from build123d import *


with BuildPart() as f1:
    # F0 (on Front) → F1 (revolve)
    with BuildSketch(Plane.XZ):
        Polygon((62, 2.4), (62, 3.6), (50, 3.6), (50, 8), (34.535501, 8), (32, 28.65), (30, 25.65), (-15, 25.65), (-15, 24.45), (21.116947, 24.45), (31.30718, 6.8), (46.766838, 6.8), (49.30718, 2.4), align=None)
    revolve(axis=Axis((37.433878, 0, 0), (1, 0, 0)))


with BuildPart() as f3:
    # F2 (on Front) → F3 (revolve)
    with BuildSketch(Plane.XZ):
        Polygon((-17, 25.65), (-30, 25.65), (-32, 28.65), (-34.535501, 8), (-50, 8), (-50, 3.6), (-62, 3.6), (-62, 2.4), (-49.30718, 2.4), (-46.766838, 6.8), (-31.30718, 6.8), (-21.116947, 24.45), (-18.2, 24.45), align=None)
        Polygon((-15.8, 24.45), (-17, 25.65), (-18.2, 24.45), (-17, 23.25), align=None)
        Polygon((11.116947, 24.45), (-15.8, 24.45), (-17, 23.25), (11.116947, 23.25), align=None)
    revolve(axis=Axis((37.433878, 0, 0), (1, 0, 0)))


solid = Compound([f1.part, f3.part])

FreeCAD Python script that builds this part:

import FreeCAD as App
import Part
import Sketcher
from FreeCAD import Vector
Q = App.Units.Quantity


def add_polygon(sketch, points):
    """Adds a closed chain of lines whose ends are joined by coincident constraints."""
    first, n = sketch.GeometryCount, len(points)
    for a, b in zip(points, points[1:] + points[:1]):
        sketch.addGeometry(Part.LineSegment(App.Vector(*a, 0), App.Vector(*b, 0)), False)
    for i in range(n):
        sketch.addConstraint(Sketcher.Constraint("Coincident", first + i, 2, first + (i + 1) % n, 1))

doc = App.newDocument("Part")
params = doc.addObject("Spreadsheet::Sheet", "Params")
for row, (alias, value) in enumerate([
    ("sketch1_width", "12 mm"),
    ("sketch1_width2", "45 mm"),
    ("sketch1_height", "1.2 mm"),
    ("sketch1_height2", "4.4 mm"),
    ("revolution_angle", "360 deg"),
    ("sketch2_width", "13 mm"),
    ("sketch2_width2", "12 mm"),
    ("sketch2_height", "4.4 mm"),
    ("sketch2_height2", "1.2 mm"),
    ("revolution2_angle", "360 deg"),
], start=1):
    params.set(f"A{row}", alias)
    params.set(f"B{row}", "=" + value)
    params.setAlias(f"B{row}", alias)

body = doc.addObject("PartDesign::Body", "Body")

sketch1 = doc.addObject("Sketcher::SketchObject", "Sketch")
body.addObject(sketch1)
sketch1.AttachmentSupport = (doc.XZ_Plane, [""])
sketch1.MapMode = "FlatFace"
add_polygon(sketch1, [(62, 2.4), (62, 3.6), (50, 3.6), (50, 8), (34.5, 8), (32, 28.6), (30, 25.6), (-15, 25.6), (-15, 24.4), (21.1, 24.4), (31.3, 6.8), (46.8, 6.8), (49.3, 2.4)])
sketch1.addConstraint([
    Sketcher.Constraint("Vertical", 0),
    Sketcher.Constraint("Horizontal", 1),
    Sketcher.Constraint("Vertical", 2),
    Sketcher.Constraint("Horizontal", 3),
    Sketcher.Constraint("Horizontal", 6),
    Sketcher.Constraint("Vertical", 7),
    Sketcher.Constraint("Horizontal", 8),
    Sketcher.Constraint("Horizontal", 10),
    Sketcher.Constraint("Horizontal", 12),
    Sketcher.Constraint("Parallel", 9, 11),
    Sketcher.Constraint("Equal", 0, 7),
    Sketcher.Constraint("DistanceX", 1, 2, 1, 1, 12.0),
    Sketcher.Constraint("DistanceX", 6, 2, 6, 1, 45.0),
    Sketcher.Constraint("Angle", 4, Q("97 deg")),
    Sketcher.Constraint("Angle", 9, Q("-59.999998 deg")),
    Sketcher.Constraint("DistanceY", 0, 1, 0, 2, 1.2),
    Sketcher.Constraint("DistanceY", 2, 1, 2, 2, 4.4),
    Sketcher.Constraint("DistanceX", -1, 1, 0, 2, 62.0),
    Sketcher.Constraint("DistanceY", -1, 1, 2, 2, 8.0),
    Sketcher.Constraint("DistanceX", -1, 1, 4, 2, 32.0),
    Sketcher.Constraint("DistanceX", -1, 1, 5, 2, 30.0),
    Sketcher.Constraint("DistanceY", 5, 2, 4, 2, 3.0),
    Sketcher.Constraint("DistanceY", -1, 1, 9, 2, 6.8),
    Sketcher.Constraint("DistanceY", -1, 1, 4, 2, 28.65),
    Sketcher.Constraint("DistanceX", 10, 1, 10, 2, 15.459658),
    Sketcher.Constraint("DistanceX", 12, 1, 12, 2, 12.69282),
])
sketch1.setExpression("Constraints[24]", "Params.sketch1_width")
sketch1.setExpression("Constraints[25]", "Params.sketch1_width2")
sketch1.setExpression("Constraints[28]", "Params.sketch1_height")
sketch1.setExpression("Constraints[29]", "Params.sketch1_height2")
revolution = doc.addObject("PartDesign::Revolution", "Revolution")
body.addObject(revolution)
revolution.Profile = sketch1
revolution.ReferenceAxis = (sketch1, ["H_Axis"])
revolution.setExpression("Angle", "Params.revolution_angle")
body2 = doc.addObject("PartDesign::Body", "Body001")

sketch2 = doc.addObject("Sketcher::SketchObject", "Sketch001")
body2.addObject(sketch2)
sketch2.AttachmentSupport = (doc.getObject("XZ_Plane001"), [""])
sketch2.MapMode = "FlatFace"
add_polygon(sketch2, [(-17, 25.6), (-30, 25.6), (-32, 28.6), (-34.5, 8), (-50, 8), (-50, 3.6), (-62, 3.6), (-62, 2.4), (-49.3, 2.4), (-46.8, 6.8), (-31.3, 6.8), (-21.1, 24.4), (-18.2, 24.4), (-17, 23.2), (11.1, 23.2), (11.1, 24.4), (-15.8, 24.4)])
sketch2.addConstraint([
    Sketcher.Constraint("Horizontal", 0),
    Sketcher.Constraint("Horizontal", 3),
    Sketcher.Constraint("Vertical", 4),
    Sketcher.Constraint("Horizontal", 5),
    Sketcher.Constraint("Vertical", 6),
    Sketcher.Constraint("Horizontal", 7),
    Sketcher.Constraint("Horizontal", 9),
    Sketcher.Constraint("Horizontal", 11),
    Sketcher.Constraint("Horizontal", 13),
    Sketcher.Constraint("Vertical", 14),
    Sketcher.Constraint("Horizontal", 15),
    Sketcher.Constraint("Parallel", 8, 10),
    Sketcher.Constraint("Parallel", 12, 16),
    Sketcher.Constraint("Horizontal", 11, 2, 14, 2),
    Sketcher.Constraint("Vertical", 12, 2, 16, 2),
    Sketcher.Constraint("Equal", 6, 14),
    Sketcher.Constraint("Equal", 12, 16),
    Sketcher.Constraint("DistanceX", 0, 2, 0, 1, 13.0),
    Sketcher.Constraint("DistanceX", 5, 2, 5, 1, 12.0),
    Sketcher.Constraint("Angle", 2, Q("-97 deg")),
    Sketcher.Constraint("Angle", 8, Q("59.999992 deg")),
    Sketcher.Constraint("Angle", 12, Q("-45 deg")),
    Sketcher.Constraint("DistanceY", 4, 2, 4, 1, 4.4),
    Sketcher.Constraint("DistanceY", 6, 2, 6, 1, 1.2),
    Sketcher.Constraint("DistanceX", 0, 2, -1, 1, 30.0),
    Sketcher.Constraint("DistanceX", 1, 2, -1, 1, 32.0),
    Sketcher.Constraint("DistanceY", -1, 1, 2, 2, 8.0),
    Sketcher.Constraint("DistanceX", 3, 2, -1, 1, 50.0),
    Sketcher.Constraint("DistanceY", 0, 2, 1, 2, 3.0),
    Sketcher.Constraint("DistanceX", 7, 2, 9, 2, 18.0),
    Sketcher.Constraint("DistanceY", -1, 1, 8, 2, 6.8),
    Sketcher.Constraint("DistanceY", -1, 1, 0, 2, 25.65),
    Sketcher.Constraint("DistanceX", 7, 1, 7, 2, 12.69282),
    Sketcher.Constraint("DistanceX", 13, 1, 13, 2, 28.116947),
])
sketch2.setExpression("Constraints[34]", "Params.sketch2_width")
sketch2.setExpression("Constraints[35]", "Params.sketch2_width2")
sketch2.setExpression("Constraints[39]", "Params.sketch2_height")
sketch2.setExpression("Constraints[40]", "Params.sketch2_height2")
revolution2 = doc.addObject("PartDesign::Revolution", "Revolution001")
body2.addObject(revolution2)
revolution2.Profile = sketch2
revolution2.ReferenceAxis = (sketch2, ["H_Axis"])
revolution2.setExpression("Angle", "Params.revolution2_angle")

doc.recompute()
